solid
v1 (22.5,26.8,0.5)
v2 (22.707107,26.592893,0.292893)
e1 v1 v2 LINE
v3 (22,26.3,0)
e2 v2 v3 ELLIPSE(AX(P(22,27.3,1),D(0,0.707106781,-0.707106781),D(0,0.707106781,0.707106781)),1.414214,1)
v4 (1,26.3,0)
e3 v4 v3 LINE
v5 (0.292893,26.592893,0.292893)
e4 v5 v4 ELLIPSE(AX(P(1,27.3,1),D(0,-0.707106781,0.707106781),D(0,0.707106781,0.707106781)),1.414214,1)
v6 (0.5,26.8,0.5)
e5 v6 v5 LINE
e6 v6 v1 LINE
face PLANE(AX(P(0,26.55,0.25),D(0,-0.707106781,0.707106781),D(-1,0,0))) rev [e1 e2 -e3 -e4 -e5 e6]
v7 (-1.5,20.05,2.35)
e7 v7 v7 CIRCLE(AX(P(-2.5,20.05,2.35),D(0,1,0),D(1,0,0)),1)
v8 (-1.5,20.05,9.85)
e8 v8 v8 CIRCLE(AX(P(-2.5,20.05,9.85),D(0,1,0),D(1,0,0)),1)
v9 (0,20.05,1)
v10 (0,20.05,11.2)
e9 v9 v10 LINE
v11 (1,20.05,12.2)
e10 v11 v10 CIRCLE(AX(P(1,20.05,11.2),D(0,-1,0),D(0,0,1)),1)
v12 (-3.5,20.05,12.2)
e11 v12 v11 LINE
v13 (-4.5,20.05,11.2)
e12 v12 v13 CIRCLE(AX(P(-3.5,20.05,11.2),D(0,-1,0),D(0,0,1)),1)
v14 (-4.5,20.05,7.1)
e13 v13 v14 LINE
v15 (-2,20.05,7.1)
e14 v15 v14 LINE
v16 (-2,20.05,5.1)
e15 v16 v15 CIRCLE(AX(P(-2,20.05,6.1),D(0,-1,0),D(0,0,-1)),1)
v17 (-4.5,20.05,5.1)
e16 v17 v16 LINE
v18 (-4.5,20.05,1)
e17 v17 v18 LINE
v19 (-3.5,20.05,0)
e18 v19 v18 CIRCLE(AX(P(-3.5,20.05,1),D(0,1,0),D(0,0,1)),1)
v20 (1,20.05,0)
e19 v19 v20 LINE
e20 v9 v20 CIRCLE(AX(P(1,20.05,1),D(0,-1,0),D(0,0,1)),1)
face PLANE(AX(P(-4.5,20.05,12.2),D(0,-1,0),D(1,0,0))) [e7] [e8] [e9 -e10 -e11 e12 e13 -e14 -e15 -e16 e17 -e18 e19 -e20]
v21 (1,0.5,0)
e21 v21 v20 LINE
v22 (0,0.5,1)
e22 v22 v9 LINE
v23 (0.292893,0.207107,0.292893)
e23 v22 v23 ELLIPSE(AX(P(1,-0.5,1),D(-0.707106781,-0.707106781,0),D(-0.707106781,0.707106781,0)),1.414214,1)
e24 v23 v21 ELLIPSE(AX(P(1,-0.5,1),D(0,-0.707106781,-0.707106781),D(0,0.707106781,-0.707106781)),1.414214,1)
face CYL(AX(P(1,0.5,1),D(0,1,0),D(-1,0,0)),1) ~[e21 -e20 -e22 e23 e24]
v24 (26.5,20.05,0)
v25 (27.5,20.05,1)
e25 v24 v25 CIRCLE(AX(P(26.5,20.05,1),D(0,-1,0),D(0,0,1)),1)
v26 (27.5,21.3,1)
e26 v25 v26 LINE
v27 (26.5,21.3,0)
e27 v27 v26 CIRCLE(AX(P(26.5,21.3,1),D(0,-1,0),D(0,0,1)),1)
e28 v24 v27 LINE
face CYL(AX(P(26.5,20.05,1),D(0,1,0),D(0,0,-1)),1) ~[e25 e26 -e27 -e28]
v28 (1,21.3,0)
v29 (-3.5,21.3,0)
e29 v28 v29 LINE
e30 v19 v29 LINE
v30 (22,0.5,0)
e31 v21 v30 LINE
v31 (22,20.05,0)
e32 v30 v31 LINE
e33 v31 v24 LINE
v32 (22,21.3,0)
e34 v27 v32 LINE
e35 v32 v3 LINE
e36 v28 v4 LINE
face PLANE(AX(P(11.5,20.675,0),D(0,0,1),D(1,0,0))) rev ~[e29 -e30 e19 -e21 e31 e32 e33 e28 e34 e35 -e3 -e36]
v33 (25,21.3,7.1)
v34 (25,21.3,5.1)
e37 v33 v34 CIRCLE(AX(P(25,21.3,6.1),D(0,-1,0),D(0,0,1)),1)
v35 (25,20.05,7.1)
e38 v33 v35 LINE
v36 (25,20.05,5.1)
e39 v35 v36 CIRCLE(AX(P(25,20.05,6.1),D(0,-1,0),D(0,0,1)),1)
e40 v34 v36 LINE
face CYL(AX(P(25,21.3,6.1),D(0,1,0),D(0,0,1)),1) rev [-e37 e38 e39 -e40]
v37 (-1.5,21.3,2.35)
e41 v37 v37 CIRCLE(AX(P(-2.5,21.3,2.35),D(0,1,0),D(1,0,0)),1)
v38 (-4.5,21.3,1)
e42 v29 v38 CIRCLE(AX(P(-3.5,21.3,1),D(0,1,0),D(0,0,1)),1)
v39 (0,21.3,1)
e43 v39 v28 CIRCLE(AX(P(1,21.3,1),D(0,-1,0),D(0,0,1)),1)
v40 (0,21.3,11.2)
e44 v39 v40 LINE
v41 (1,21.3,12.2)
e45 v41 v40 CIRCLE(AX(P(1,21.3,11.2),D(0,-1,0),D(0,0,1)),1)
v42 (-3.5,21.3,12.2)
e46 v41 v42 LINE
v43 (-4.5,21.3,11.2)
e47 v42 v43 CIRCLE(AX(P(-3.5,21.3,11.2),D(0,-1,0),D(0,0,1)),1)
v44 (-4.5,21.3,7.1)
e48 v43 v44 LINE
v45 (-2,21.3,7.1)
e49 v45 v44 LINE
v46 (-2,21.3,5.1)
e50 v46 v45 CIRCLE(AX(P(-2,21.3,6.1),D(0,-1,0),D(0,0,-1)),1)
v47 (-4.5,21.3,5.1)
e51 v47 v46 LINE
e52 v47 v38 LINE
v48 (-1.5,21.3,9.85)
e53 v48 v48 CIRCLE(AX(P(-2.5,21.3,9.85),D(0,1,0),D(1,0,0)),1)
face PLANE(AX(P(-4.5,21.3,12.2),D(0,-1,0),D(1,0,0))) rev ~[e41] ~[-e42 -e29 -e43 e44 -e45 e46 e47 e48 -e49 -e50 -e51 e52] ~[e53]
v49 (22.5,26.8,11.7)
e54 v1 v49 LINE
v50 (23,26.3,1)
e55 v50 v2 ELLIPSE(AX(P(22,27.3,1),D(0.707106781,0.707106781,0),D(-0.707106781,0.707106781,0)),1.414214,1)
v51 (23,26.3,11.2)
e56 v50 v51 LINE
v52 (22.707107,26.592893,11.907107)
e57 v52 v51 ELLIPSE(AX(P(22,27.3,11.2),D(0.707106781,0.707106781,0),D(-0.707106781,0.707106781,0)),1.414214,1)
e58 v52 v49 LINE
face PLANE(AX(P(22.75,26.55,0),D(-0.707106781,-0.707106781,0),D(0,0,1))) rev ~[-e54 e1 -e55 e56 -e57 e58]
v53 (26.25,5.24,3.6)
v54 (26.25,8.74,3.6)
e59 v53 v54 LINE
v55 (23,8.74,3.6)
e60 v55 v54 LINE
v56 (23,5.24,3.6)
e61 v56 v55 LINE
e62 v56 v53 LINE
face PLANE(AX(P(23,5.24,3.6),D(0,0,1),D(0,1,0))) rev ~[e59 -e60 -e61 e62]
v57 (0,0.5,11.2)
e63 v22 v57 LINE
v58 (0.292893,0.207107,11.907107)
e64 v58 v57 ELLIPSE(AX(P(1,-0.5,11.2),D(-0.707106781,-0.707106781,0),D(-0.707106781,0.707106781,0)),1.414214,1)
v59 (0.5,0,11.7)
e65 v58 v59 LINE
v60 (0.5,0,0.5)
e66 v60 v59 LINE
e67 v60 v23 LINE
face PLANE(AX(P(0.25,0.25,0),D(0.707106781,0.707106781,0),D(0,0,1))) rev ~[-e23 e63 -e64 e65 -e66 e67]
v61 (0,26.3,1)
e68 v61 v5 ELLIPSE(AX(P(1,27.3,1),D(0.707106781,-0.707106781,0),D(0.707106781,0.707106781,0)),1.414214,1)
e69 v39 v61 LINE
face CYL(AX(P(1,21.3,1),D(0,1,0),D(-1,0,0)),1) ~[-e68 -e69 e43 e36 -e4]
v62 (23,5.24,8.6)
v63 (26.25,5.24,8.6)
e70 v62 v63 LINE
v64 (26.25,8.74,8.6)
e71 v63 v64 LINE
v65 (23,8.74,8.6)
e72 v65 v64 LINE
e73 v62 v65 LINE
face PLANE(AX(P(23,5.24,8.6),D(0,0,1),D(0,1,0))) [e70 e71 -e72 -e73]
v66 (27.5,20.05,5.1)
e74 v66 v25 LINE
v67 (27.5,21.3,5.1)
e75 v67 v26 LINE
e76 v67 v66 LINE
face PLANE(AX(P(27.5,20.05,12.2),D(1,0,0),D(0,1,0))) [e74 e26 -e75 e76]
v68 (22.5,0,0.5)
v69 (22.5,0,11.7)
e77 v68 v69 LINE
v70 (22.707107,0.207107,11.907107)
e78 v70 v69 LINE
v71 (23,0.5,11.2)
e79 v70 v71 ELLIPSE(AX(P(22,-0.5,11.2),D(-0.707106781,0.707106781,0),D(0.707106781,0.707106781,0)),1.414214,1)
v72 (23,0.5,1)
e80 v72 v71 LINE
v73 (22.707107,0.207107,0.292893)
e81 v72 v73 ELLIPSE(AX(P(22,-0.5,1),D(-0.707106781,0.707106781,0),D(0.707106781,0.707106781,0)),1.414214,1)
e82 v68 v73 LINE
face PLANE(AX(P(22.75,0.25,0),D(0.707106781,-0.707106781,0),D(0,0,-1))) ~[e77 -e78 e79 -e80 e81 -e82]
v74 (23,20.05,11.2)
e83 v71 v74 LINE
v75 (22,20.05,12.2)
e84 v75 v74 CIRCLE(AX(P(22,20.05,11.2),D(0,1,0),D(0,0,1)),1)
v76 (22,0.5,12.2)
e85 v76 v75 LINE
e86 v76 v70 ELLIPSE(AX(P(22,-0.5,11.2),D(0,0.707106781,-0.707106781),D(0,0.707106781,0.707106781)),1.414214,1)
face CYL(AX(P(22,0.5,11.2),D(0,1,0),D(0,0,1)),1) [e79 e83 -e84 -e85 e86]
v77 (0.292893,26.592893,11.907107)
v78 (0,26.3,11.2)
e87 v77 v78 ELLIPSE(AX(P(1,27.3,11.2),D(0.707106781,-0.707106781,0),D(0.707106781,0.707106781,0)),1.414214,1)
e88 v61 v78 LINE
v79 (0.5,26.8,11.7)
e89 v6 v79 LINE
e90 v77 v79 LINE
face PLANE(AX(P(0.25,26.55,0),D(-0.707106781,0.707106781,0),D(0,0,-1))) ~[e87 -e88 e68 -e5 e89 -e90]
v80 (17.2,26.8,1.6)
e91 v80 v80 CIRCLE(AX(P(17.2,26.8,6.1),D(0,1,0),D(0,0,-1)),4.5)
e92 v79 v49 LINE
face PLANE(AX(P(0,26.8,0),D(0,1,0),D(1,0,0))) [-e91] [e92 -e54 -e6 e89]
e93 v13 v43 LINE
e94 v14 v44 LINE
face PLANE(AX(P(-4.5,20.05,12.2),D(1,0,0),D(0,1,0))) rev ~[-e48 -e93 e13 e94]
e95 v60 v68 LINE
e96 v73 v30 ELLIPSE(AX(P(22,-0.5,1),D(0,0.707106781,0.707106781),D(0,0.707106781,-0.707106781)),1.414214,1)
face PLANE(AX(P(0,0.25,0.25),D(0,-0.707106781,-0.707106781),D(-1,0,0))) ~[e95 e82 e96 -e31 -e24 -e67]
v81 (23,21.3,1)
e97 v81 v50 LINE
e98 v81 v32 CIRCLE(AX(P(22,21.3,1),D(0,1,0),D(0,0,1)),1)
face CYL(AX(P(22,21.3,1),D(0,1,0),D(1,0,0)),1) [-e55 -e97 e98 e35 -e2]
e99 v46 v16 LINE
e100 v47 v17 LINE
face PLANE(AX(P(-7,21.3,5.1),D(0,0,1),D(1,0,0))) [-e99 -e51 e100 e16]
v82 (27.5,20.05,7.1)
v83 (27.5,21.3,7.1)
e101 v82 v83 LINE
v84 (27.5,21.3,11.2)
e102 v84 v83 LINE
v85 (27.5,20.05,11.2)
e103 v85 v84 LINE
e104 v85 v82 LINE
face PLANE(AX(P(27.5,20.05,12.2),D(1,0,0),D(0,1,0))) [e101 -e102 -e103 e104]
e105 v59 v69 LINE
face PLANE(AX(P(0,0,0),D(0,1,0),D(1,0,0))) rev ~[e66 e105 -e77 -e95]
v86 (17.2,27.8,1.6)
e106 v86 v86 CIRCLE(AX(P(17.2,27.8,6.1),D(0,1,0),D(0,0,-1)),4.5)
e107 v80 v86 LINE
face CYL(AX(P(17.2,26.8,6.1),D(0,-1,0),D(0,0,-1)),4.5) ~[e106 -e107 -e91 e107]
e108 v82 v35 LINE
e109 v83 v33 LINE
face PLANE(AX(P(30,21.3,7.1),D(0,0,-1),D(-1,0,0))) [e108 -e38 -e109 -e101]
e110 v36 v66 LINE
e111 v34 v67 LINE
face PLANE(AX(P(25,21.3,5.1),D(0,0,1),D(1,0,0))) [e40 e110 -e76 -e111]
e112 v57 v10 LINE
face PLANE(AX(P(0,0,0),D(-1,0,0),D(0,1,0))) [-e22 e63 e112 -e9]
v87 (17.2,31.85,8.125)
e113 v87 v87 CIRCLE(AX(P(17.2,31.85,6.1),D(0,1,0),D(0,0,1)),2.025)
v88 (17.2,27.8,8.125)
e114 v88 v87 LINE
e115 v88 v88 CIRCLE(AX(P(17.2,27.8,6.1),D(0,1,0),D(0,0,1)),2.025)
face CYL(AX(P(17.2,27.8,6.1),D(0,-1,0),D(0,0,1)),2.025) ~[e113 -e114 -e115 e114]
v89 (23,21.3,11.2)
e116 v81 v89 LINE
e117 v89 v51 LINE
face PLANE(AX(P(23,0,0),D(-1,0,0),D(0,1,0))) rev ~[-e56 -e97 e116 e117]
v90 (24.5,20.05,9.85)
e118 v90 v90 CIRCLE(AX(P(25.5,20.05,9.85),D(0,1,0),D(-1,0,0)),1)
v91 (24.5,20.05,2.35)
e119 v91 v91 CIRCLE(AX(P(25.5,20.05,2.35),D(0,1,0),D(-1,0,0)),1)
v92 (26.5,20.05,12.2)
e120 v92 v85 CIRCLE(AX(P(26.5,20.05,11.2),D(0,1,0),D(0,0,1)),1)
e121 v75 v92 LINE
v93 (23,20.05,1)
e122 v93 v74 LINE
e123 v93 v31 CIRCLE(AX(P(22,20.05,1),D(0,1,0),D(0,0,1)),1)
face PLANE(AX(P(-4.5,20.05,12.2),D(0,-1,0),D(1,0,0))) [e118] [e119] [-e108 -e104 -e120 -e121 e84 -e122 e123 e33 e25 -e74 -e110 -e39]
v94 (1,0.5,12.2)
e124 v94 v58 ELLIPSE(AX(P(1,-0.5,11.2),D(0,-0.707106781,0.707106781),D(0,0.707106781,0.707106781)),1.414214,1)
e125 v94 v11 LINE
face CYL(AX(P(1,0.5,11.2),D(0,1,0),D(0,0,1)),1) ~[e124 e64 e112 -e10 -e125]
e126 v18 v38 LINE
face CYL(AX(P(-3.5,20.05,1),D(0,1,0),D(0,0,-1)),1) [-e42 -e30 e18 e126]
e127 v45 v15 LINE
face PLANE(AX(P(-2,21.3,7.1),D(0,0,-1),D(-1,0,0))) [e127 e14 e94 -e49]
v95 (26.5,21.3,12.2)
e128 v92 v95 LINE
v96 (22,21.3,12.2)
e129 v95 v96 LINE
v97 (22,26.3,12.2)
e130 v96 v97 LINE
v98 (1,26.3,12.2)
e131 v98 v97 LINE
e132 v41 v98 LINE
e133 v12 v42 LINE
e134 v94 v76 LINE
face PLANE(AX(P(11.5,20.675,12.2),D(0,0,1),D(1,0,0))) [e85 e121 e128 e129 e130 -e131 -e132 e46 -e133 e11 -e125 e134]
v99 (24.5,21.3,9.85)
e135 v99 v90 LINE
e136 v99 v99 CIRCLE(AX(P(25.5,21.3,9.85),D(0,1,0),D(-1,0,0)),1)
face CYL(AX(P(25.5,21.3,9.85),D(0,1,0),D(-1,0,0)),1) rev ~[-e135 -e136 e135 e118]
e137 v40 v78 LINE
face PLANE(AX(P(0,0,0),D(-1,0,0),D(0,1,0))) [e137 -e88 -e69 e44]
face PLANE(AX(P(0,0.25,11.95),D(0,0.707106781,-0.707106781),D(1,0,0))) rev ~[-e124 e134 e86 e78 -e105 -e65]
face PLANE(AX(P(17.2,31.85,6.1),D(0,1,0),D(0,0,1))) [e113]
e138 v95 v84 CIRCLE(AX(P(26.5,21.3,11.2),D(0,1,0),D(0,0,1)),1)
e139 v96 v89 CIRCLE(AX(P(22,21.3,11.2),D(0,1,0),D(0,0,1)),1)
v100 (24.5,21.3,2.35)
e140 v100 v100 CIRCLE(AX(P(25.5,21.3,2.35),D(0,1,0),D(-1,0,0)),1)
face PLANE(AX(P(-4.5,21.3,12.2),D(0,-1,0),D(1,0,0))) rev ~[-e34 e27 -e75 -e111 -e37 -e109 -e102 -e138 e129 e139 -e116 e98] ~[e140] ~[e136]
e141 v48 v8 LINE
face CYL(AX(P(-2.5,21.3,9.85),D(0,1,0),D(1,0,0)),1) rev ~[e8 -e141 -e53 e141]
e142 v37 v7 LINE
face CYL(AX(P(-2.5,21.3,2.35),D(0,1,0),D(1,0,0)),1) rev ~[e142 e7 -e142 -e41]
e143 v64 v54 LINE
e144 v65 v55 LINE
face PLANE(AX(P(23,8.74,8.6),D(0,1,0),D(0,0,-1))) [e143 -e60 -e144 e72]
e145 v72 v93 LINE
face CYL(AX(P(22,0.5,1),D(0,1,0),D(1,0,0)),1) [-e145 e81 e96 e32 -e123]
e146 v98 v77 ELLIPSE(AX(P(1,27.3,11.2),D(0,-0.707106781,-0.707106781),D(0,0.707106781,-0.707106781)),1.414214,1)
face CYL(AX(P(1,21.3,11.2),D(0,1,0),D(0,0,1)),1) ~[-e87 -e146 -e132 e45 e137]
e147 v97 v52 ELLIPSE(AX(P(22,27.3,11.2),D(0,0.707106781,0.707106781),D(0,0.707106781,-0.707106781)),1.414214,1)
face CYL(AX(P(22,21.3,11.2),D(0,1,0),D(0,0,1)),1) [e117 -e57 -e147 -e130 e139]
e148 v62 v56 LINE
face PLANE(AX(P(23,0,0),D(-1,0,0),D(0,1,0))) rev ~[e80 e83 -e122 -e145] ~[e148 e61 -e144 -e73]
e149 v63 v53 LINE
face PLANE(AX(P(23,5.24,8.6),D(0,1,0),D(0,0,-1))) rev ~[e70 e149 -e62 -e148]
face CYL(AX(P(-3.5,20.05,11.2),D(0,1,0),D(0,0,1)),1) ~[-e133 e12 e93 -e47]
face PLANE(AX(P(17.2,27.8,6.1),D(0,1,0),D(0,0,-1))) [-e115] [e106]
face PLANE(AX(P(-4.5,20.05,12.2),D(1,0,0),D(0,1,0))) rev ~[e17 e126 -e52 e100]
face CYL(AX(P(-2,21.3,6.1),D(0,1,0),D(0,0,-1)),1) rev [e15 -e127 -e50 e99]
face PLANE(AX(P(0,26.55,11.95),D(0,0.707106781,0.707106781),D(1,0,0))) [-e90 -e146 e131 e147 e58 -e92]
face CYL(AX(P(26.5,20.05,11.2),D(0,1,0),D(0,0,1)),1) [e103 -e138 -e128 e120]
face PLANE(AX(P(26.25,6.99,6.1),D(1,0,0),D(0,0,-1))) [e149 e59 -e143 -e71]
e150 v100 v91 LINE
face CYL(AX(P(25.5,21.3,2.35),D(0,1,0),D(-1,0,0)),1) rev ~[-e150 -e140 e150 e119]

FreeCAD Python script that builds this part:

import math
import FreeCAD as App
import Part
import Sketcher
from FreeCAD import Vector
Q = App.Units.Quantity


def edges_at(feature, points):
    """Names of the edges that pass closest to the given points."""
    edges = feature.Shape.Edges
    near = lambda p: min(range(len(edges)), key=lambda i: edges[i].distToShape(Part.Vertex(*p))[0])
    return sorted({f"Edge{near(p) + 1}" for p in points})


def add_polygon(sketch, points):
    """Adds a closed chain of lines whose ends are joined by coincident constraints."""
    first, n = sketch.GeometryCount, len(points)
    for a, b in zip(points, points[1:] + points[:1]):
        sketch.addGeometry(Part.LineSegment(App.Vector(*a, 0), App.Vector(*b, 0)), False)
    for i in range(n):
        sketch.addConstraint(Sketcher.Constraint("Coincident", first + i, 2, first + (i + 1) % n, 1))

doc = App.newDocument("Part")
body = doc.addObject("PartDesign::Body", "Body")

sketch1 = doc.addObject("Sketcher::SketchObject", "Sketch")
body.addObject(sketch1)
sketch1.AttachmentSupport = (doc.XY_Plane, [""])
sketch1.MapMode = "FlatFace"
add_polygon(sketch1, [(0, 26.8), (0, 0), (23, 0), (23, 26.8)])
sketch1.addConstraint([
    Sketcher.Constraint("Vertical", 0),
    Sketcher.Constraint("Horizontal", 1),
    Sketcher.Constraint("Vertical", 2),
    Sketcher.Constraint("Horizontal", 3),
    Sketcher.Constraint("Coincident", 0, 2, -1, 1),
    Sketcher.Constraint("DistanceX", 1, 1, 1, 2, Q("23 mm")),
    Sketcher.Constraint("DistanceY", 0, 2, 0, 1, Q("26.8 mm")),
])
pad1 = doc.addObject("PartDesign::Pad", "Pad")
body.addObject(pad1)
pad1.Profile = sketch1
pad1.Length = 12.2

sketch2 = doc.addObject("Sketcher::SketchObject", "Sketch001")
body.addObject(sketch2)
sketch2.AttachmentSupport = (doc.XY_Plane, [""])
sketch2.MapMode = "FlatFace"
sketch2.AttachmentOffset = App.Placement(Vector(0, 0, 12.2), App.Rotation())
add_polygon(sketch2, [(-4.5, 21.3), (-4.5, 20.05), (27.5, 20.05), (27.5, 21.3)])
sketch2.addConstraint([
    Sketcher.Constraint("Vertical", 0),
    Sketcher.Constraint("Horizontal", 1),
    Sketcher.Constraint("Vertical", 2),
    Sketcher.Constraint("Horizontal", 3),
    Sketcher.Constraint("DistanceX", 1, 1, 1, 2, Q("32 mm")),
    Sketcher.Constraint("DistanceY", 0, 2, 0, 1, Q("1.25 mm")),
    Sketcher.Constraint("DistanceX", 0, 2, -1, 1, Q("4.5 mm")),
    Sketcher.Constraint("DistanceY", -1, 1, 2, 2, Q("21.3 mm")),
])
pad2 = doc.addObject("PartDesign::Pad", "Pad001")
body.addObject(pad2)
pad2.Profile = sketch2
pad2.Length = 12.2
pad2.Reversed = True

sketch3 = doc.addObject("Sketcher::SketchObject", "Sketch002")
body.addObject(sketch3)
sketch3.AttachmentSupport = (doc.XZ_Plane, [""])
sketch3.MapMode = "FlatFace"
sketch3.AttachmentOffset = App.Placement(Vector(0, 0, -26.8), App.Rotation())
sketch3.addGeometry(Part.Circle(Vector(17.2, 6.1, 0), Vector(0, 0, 1), 4.5), False)
sketch3.addConstraint([
    Sketcher.Constraint("Diameter", 0, Q("9 mm")),
    Sketcher.Constraint("DistanceX", -1, 1, 0, 3, Q("17.2 mm")),
    Sketcher.Constraint("DistanceY", -1, 1, 0, 3, Q("6.1 mm")),
])
pad3 = doc.addObject("PartDesign::Pad", "Pad002")
body.addObject(pad3)
pad3.Profile = sketch3
pad3.Length = 1
pad3.Reversed = True

sketch4 = doc.addObject("Sketcher::SketchObject", "Sketch003")
body.addObject(sketch4)
sketch4.AttachmentSupport = (doc.XZ_Plane, [""])
sketch4.MapMode = "FlatFace"
sketch4.AttachmentOffset = App.Placement(Vector(0, 0, -27.8), App.Rotation())
sketch4.addGeometry(Part.Circle(Vector(17.2, 6.1, 0), Vector(0, 0, 1), 2.025), False)
sketch4.addConstraint([
    Sketcher.Constraint("Diameter", 0, Q("4.05 mm")),
    Sketcher.Constraint("DistanceX", -1, 1, 0, 3, Q("17.2 mm")),
    Sketcher.Constraint("DistanceY", -1, 1, 0, 3, Q("6.1 mm")),
])
pad4 = doc.addObject("PartDesign::Pad", "Pad003")
body.addObject(pad4)
pad4.Profile = sketch4
pad4.Length = 4.05
pad4.Reversed = True

sketch5 = doc.addObject("Sketcher::SketchObject", "Sketch004")
body.addObject(sketch5)
sketch5.AttachmentSupport = (doc.YZ_Plane, [""])
sketch5.MapMode = "FlatFace"
sketch5.AttachmentOffset = App.Placement(Vector(0, 0, 23), App.Rotation())
add_polygon(sketch5, [(8.74, 8.6), (5.24, 8.6), (5.24, 3.6), (8.74, 3.6)])
sketch5.addConstraint([
    Sketcher.Constraint("Horizontal", 0),
    Sketcher.Constraint("Vertical", 1),
    Sketcher.Constraint("Horizontal", 2),
    Sketcher.Constraint("Vertical", 3),
    Sketcher.Constraint("DistanceY", 1, 2, 1, 1, Q("5 mm")),
    Sketcher.Constraint("DistanceX", 0, 2, 0, 1, Q("3.5 mm")),
    Sketcher.Constraint("DistanceY", -1, 1, 0, 2, Q("8.6 mm")),
    Sketcher.Constraint("DistanceX", -1, 1, 0, 2, Q("5.24 mm")),
])
pad5 = doc.addObject("PartDesign::Pad", "Pad004")
body.addObject(pad5)
pad5.Profile = sketch5
pad5.Length = 3.25

sketch6 = doc.addObject("Sketcher::SketchObject", "Sketch005")
body.addObject(sketch6)
sketch6.AttachmentSupport = (doc.XZ_Plane, [""])
sketch6.MapMode = "FlatFace"
sketch6.AttachmentOffset = App.Placement(Vector(0, 0, -21.3), App.Rotation())
sketch6.addGeometry([
    Part.Circle(Vector(25.5, 2.35, 0), Vector(0, 0, 1), 1),
    Part.Circle(Vector(25.5, 9.85, 0), Vector(0, 0, 1), 1),
    Part.Circle(Vector(-2.5, 9.85, 0), Vector(0, 0, 1), 1),
    Part.Circle(Vector(-2.5, 2.35, 0), Vector(0, 0, 1), 1),
    Part.LineSegment(Vector(25, 7.1, 0), Vector(30, 7.1, 0)),
    Part.ArcOfCircle(Part.Circle(Vector(30, 6.1, 0), Vector(0, 0, 1), 1), math.radians(-90), math.radians(90)),
    Part.LineSegment(Vector(30, 5.1, 0), Vector(25, 5.1, 0)),
    Part.ArcOfCircle(Part.Circle(Vector(25, 6.1, 0), Vector(0, 0, 1), 1), math.radians(90), math.radians(270)),
    Part.LineSegment(Vector(-2, 5.1, 0), Vector(-7, 5.1, 0)),
    Part.ArcOfCircle(Part.Circle(Vector(-7, 6.1, 0), Vector(0, 0, 1), 1), math.radians(90), math.radians(270)),
    Part.LineSegment(Vector(-7, 7.1, 0), Vector(-2, 7.1, 0)),
    Part.ArcOfCircle(Part.Circle(Vector(-2, 6.1, 0), Vector(0, 0, 1), 1), math.radians(-90), math.radians(90)),
], False)
sketch6.addConstraint([
    Sketcher.Constraint("Tangent", 4, 2, 5, 2),
    Sketcher.Constraint("Tangent", 5, 1, 6, 1),
    Sketcher.Constraint("Tangent", 6, 2, 7, 2),
    Sketcher.Constraint("Tangent", 7, 1, 4, 1),
    Sketcher.Constraint("Tangent", 8, 2, 9, 2),
    Sketcher.Constraint("Tangent", 9, 1, 10, 1),
    Sketcher.Constraint("Tangent", 10, 2, 11, 2),
    Sketcher.Constraint("Tangent", 11, 1, 8, 1),
    Sketcher.Constraint("Horizontal", 4),
    Sketcher.Constraint("Horizontal", 6),
    Sketcher.Constraint("Horizontal", 8),
    Sketcher.Constraint("Horizontal", 10),
    Sketcher.Constraint("Equal", 0, 1),
    Sketcher.Constraint("Equal", 1, 2),
    Sketcher.Constraint("Equal", 2, 3),
    Sketcher.Constraint("Equal", 3, 5),
    Sketcher.Constraint("Equal", 7, 9),
    Sketcher.Constraint("Horizontal", 1, 3, 2, 3),
    Sketcher.Constraint("Horizontal", 0, 3, 3, 3),
    Sketcher.Constraint("Horizontal", 7, 3, 9, 3),
    Sketcher.Constraint("Vertical", 0, 3, 1, 3),
    Sketcher.Constraint("Vertical", 2, 3, 3, 3),
    Sketcher.Constraint("Equal", 6, 8),
    Sketcher.Constraint("Diameter", 0, Q("2 mm")),
    Sketcher.Constraint("DistanceX", 4, 1, 4, 2, Q("5 mm")),
    Sketcher.Constraint("DistanceX", -1, 1, 5, 3, Q("30 mm")),
    Sketcher.Constraint("DistanceX", 9, 3, -1, 1, Q("7 mm")),
    Sketcher.Constraint("DistanceX", 2, 3, 1, 3, Q("28 mm")),
    Sketcher.Constraint("DistanceX", -1, 1, 0, 3, Q("25.5 mm")),
    Sketcher.Constraint("DistanceY", -1, 1, 5, 3, Q("6.1 mm")),
    Sketcher.Constraint("DistanceY", 0, 3, 1, 3, Q("7.5 mm")),
    Sketcher.Constraint("DistanceY", -1, 1, 0, 3, Q("2.35 mm")),
])
pocket1 = doc.addObject("PartDesign::Pocket", "Pocket")
body.addObject(pocket1)
pocket1.Profile = sketch6
pocket1.Length = 1.25
pocket1.Reversed = True
doc.recompute()

chamfer = doc.addObject("PartDesign::Chamfer", "Chamfer")
body.addObject(chamfer)
chamfer.Base = (pocket1, edges_at(pocket1, [
    (11.5, 26.8, 12.2),
    (11.5, 26.8, 0),
    (11.5, 0, 0),
    (11.5, 0, 12.2),
    (0, 26.8, 6.1),
    (23, 26.8, 6.1),
    (23, 0, 6.1),
    (0, 0, 6.1),
]))
chamfer.Size = 0.5
doc.recompute()

fillet = doc.addObject("PartDesign::Fillet", "Fillet")
body.addObject(fillet)
fillet.Base = (chamfer, edges_at(chamfer, [
    (23, 10.275, 12.2),
    (0, 10.275, 0),
    (23, 10.275, 0),
    (0, 23.8, 12.2),
    (23, 23.8, 0),
    (0, 23.8, 0),
    (0, 10.275, 12.2),
    (23, 23.8, 12.2),
    (23, 10.275, 0),
    (0, 10.275, 0),
    (23, 10.275, 12.2),
    (0, 10.275, 12.2),
    (0, 10.275, 0),
    (23, 10.275, 0),
    (23, 10.275, 12.2),
    (0, 10.275, 12.2),
]))
fillet.Radius = 1
doc.recompute()

fillet2 = doc.addObject("PartDesign::Fillet", "Fillet001")
body.addObject(fillet2)
fillet2.Base = (fillet, edges_at(fillet, [
    (-4.5, 20.675, 12.2),
    (27.5, 20.675, 12.2),
    (27.5, 20.675, 0),
    (-4.5, 20.675, 0),
]))
fillet2.Radius = 1

doc.recompute()
